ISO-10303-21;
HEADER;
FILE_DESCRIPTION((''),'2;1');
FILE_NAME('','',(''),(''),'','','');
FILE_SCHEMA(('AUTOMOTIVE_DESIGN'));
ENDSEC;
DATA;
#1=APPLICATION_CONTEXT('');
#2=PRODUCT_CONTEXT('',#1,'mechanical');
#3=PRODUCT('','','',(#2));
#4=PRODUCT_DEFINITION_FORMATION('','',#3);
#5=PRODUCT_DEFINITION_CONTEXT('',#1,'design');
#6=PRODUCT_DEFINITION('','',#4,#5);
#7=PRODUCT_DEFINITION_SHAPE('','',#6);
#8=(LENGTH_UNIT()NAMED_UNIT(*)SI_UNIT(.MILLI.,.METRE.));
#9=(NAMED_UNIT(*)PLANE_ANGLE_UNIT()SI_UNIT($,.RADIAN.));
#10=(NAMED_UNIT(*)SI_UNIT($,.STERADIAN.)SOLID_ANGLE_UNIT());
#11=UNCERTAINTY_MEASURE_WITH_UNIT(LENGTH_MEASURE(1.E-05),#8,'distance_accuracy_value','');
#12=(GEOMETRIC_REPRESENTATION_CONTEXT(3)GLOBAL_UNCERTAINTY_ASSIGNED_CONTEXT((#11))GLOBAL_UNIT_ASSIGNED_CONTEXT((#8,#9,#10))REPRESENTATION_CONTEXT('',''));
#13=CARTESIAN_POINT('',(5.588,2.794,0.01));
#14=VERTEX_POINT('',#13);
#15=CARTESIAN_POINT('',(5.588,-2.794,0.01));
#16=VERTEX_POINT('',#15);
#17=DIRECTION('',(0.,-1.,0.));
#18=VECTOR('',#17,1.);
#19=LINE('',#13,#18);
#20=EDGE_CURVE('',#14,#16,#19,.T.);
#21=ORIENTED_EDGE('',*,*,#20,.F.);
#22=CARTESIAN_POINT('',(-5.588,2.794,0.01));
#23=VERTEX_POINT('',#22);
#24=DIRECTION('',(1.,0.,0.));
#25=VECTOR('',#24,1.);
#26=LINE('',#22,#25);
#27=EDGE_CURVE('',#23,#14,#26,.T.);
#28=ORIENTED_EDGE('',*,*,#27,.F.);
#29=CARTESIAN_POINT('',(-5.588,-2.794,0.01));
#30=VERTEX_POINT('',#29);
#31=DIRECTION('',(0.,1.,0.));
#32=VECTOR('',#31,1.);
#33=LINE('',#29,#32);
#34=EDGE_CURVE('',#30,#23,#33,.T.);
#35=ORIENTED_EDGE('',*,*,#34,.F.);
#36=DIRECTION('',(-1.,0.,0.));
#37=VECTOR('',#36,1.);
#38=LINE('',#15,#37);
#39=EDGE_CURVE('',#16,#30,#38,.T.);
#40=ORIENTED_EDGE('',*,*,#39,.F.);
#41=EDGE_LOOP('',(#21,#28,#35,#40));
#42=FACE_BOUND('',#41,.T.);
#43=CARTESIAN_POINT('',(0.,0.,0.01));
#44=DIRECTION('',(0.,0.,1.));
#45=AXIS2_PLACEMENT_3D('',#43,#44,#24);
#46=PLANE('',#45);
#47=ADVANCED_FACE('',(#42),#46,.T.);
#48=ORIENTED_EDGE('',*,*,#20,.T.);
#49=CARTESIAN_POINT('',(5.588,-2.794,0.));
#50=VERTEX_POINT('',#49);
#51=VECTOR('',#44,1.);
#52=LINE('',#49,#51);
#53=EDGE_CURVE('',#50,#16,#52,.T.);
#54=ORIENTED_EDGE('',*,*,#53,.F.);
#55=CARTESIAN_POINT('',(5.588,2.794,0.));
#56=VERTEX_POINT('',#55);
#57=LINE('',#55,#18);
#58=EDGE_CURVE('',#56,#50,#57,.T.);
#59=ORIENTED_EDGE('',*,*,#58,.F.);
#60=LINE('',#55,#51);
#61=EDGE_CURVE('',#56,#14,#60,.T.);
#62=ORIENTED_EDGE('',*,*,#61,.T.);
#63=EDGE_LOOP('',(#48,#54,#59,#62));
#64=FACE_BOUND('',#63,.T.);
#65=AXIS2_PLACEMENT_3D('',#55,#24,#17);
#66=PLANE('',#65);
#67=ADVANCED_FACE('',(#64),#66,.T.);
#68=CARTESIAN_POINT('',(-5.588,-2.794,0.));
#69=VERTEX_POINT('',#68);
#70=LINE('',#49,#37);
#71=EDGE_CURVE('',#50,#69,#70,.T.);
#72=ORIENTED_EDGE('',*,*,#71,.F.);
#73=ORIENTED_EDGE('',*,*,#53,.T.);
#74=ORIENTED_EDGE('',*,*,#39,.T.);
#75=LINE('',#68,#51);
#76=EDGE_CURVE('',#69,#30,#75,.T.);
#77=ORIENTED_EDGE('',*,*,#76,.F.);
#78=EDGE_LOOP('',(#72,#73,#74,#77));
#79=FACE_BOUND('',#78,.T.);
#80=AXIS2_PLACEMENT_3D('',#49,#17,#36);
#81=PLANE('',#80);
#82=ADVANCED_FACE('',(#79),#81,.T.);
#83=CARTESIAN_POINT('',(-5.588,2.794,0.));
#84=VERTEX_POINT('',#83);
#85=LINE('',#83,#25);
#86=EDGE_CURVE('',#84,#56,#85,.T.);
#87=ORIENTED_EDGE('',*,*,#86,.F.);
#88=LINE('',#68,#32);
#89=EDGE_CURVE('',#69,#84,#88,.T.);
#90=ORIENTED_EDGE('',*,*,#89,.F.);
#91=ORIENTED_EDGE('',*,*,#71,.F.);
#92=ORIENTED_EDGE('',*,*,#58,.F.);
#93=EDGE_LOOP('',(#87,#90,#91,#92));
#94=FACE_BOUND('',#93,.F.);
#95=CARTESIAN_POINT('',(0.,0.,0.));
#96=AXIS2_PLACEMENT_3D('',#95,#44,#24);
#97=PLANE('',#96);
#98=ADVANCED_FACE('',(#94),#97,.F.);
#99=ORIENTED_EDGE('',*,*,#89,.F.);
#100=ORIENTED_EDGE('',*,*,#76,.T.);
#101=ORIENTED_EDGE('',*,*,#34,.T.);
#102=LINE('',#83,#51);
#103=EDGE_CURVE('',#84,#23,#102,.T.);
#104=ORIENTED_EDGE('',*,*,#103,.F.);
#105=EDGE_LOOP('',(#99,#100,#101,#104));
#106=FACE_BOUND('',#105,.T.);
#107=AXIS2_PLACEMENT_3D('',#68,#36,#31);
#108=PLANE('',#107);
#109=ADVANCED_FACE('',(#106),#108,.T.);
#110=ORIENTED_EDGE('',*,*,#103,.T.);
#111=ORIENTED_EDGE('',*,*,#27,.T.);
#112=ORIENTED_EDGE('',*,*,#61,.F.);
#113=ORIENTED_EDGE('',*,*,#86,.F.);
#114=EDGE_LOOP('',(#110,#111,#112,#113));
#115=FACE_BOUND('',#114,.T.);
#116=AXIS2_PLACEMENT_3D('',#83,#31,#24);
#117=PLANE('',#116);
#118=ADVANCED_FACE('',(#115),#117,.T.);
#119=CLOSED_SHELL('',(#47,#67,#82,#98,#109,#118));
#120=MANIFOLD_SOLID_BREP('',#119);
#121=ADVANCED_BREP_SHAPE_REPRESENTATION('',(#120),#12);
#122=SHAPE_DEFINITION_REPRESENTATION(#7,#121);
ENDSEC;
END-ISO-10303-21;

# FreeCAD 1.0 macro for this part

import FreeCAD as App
import Part
import Sketcher

V = App.Vector
Q = App.Units.Quantity


def add_polygon(sketch, points):
    """Adds a closed chain of lines whose ends are joined by coincident constraints."""
    first, n = sketch.GeometryCount, len(points)
    for a, b in zip(points, points[1:] + points[:1]):
        sketch.addGeometry(Part.LineSegment(App.Vector(*a, 0), App.Vector(*b, 0)), False)
    for i in range(n):
        sketch.addConstraint(Sketcher.Constraint("Coincident", first + i, 2, first + (i + 1) % n, 1))

doc = App.newDocument("Part")
body = doc.addObject("PartDesign::Body", "Body")

sketch1 = body.newObject("Sketcher::SketchObject", "Sketch")
sketch1.AttachmentSupport = (doc.getObject("XY_Plane"), [""])
sketch1.MapMode = "FlatFace"
add_polygon(sketch1, [(6, 3), (-6, 3), (-6, -3), (6, -3)])
sketch1.addConstraint([
    Sketcher.Constraint("Horizontal", 0),
    Sketcher.Constraint("Vertical", 1),
    Sketcher.Constraint("Horizontal", 2),
    Sketcher.Constraint("Vertical", 3),
    Sketcher.Constraint("Symmetric", 0, 2, 2, 2, -1, 1),
    Sketcher.Constraint("DistanceX", 0, 2, 0, 1, Q("0.44 in")),
    Sketcher.Constraint("DistanceY", 1, 2, 1, 1, Q("0.22 in")),
])
pad1 = body.newObject("PartDesign::Pad", "Pad")
pad1.Profile = sketch1
pad1.Length = Q("0.0003937 in")

doc.recompute()
